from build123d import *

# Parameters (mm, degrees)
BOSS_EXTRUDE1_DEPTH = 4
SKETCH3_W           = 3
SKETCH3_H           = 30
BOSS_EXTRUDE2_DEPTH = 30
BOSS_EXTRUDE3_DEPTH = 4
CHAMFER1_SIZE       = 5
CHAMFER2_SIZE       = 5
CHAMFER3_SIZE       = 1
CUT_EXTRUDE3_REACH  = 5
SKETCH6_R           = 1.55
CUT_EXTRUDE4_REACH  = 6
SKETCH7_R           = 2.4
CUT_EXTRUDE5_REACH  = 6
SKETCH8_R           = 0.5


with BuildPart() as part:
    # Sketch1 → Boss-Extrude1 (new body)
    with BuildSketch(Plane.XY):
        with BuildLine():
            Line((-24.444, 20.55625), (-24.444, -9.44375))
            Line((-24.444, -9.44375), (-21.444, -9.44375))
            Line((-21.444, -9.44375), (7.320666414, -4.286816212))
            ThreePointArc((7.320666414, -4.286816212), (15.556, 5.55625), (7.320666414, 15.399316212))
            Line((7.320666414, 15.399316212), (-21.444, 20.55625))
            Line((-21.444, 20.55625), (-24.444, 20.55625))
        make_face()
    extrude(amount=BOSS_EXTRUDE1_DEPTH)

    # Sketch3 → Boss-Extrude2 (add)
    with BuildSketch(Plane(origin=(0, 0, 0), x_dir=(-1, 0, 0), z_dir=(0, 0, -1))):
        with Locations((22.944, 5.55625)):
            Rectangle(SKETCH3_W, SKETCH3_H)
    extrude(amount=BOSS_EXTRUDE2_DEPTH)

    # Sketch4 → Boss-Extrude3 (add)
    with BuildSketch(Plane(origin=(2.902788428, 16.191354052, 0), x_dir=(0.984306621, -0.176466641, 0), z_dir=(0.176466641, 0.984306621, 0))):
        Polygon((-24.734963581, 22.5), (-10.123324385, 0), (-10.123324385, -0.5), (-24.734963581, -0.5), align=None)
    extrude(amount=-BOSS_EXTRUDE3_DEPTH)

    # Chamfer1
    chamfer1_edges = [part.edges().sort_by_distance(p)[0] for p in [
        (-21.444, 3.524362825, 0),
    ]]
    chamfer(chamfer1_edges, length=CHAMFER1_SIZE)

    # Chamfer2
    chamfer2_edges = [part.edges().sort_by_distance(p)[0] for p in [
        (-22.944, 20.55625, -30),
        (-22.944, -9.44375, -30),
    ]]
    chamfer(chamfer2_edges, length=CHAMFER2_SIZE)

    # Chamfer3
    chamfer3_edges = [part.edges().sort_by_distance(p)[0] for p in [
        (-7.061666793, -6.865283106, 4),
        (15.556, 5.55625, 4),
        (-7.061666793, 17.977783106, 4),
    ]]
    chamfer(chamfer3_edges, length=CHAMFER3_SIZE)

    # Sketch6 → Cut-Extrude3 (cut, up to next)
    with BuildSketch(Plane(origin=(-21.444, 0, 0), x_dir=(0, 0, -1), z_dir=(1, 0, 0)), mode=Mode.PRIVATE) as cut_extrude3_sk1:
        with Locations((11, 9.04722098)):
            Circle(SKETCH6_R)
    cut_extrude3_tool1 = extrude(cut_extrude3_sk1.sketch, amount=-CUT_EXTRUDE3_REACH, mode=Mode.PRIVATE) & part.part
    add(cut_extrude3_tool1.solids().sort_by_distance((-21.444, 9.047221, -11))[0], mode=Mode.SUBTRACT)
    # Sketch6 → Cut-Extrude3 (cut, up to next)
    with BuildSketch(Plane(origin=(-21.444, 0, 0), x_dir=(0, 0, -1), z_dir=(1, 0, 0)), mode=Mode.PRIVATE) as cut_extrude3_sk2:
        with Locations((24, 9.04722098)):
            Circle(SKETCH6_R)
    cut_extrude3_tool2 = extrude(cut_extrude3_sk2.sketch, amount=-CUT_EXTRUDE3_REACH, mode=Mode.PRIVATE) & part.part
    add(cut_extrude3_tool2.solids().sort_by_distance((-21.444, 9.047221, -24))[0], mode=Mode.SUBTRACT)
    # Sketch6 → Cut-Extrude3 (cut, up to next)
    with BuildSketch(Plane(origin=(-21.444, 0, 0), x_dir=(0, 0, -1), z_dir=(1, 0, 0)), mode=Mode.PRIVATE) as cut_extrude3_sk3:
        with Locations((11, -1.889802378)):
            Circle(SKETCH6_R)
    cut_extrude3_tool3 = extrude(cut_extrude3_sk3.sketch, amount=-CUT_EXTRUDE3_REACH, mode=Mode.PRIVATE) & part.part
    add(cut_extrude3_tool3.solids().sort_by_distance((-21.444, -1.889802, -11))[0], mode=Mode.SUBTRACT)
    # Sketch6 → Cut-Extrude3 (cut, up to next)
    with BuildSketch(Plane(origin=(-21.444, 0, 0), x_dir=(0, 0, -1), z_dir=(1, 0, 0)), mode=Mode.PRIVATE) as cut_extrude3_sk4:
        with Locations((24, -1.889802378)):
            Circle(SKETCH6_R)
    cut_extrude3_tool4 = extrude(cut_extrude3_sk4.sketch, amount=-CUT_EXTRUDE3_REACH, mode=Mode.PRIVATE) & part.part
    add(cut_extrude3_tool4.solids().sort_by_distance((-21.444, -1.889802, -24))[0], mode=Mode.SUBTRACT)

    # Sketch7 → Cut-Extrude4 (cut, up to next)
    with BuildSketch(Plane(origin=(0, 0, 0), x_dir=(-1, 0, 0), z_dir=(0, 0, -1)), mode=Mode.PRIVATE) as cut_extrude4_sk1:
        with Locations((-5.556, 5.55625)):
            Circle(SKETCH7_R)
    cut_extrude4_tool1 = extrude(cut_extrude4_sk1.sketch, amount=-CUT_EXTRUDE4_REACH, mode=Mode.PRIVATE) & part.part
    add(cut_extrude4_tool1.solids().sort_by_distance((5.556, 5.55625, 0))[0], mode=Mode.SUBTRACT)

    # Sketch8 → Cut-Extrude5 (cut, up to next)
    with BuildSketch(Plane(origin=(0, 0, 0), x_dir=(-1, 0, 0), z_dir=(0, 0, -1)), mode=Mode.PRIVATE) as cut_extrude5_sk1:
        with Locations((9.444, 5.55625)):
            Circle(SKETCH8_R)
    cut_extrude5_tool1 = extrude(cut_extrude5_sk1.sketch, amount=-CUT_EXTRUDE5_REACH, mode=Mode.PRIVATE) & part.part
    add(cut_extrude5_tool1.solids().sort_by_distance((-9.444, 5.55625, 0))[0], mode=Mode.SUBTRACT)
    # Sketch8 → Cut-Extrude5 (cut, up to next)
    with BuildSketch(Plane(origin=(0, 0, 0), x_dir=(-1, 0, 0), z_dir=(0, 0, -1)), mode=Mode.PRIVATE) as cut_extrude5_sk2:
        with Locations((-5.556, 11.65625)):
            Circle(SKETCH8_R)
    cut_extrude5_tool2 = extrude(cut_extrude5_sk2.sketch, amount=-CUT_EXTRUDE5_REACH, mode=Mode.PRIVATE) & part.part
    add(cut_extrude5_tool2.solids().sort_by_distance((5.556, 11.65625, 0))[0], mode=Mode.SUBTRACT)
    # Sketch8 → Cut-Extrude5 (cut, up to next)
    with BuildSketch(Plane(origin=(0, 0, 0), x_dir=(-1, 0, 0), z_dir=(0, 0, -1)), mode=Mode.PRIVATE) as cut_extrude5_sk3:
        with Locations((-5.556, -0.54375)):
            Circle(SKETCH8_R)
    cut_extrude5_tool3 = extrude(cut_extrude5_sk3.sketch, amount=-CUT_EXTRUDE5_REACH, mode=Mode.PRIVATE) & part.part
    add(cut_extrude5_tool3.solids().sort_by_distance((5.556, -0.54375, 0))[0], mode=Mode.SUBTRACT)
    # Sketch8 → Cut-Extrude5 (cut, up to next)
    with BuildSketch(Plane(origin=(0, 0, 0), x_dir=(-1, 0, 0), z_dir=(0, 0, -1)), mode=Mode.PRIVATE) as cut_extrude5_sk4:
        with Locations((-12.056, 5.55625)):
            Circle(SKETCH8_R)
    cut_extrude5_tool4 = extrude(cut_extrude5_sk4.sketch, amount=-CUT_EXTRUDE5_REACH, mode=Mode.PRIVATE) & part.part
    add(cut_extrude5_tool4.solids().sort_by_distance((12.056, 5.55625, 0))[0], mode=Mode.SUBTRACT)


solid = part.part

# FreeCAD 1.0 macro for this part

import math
import FreeCAD as App
import Part
import Sketcher

V = App.Vector
Q = App.Units.Quantity


def edges_at(feature, points):
    """Names of the edges that pass closest to the given points."""
    edges = feature.Shape.Edges
    near = lambda p: min(range(len(edges)), key=lambda i: edges[i].distToShape(Part.Vertex(*p))[0])
    return sorted({f"Edge{near(p) + 1}" for p in points})


def add_polygon(sketch, points):
    """Adds a closed chain of lines whose ends are joined by coincident constraints."""
    first, n = sketch.GeometryCount, len(points)
    for a, b in zip(points, points[1:] + points[:1]):
        sketch.addGeometry(Part.LineSegment(App.Vector(*a, 0), App.Vector(*b, 0)), False)
    for i in range(n):
        sketch.addConstraint(Sketcher.Constraint("Coincident", first + i, 2, first + (i + 1) % n, 1))

doc = App.newDocument("Part")
params = doc.addObject("Spreadsheet::Sheet", "Params")
for row, (alias, value) in enumerate([
    ("sketch1_radius", "10 mm"),
    ("sketch1_width", "3 mm"),
    ("sketch1_height", "30 mm"),
    ("pad1_length", "4 mm"),
    ("sketch2_width", "3 mm"),
    ("sketch2_height", "30 mm"),
    ("pad2_length", "30 mm"),
    ("sketch3_height", "23 mm"),
    ("sketch3_height2", "0.5 mm"),
    ("pad3_length", "4 mm"),
    ("chamfer_size", "5 mm"),
    ("chamfer2_size", "5 mm"),
    ("chamfer3_size", "1 mm"),
    ("sketch4_diameter", "3.1 mm"),
    ("sketch5_diameter", "3.1 mm"),
    ("sketch6_diameter", "3.1 mm"),
    ("sketch7_diameter", "3.1 mm"),
    ("sketch8_diameter", "4.8 mm"),
    ("sketch9_diameter", "1 mm"),
    ("sketch10_diameter", "1 mm"),
    ("sketch11_diameter", "1 mm"),
    ("sketch12_diameter", "1 mm"),
], start=1):
    params.set(f"A{row}", alias)
    params.set(f"B{row}", "=" + value)
    params.setAlias(f"B{row}", alias)

body = doc.addObject("PartDesign::Body", "Body")

sketch1 = body.newObject("Sketcher::SketchObject", "Sketch")
sketch1.AttachmentSupport = (doc.getObject("XY_Plane"), [""])
sketch1.MapMode = "FlatFace"
sketch1.addGeometry(Part.LineSegment(V(-24.4, 20.6, 0), V(-24.4, -9.4, 0)), False)
sketch1.addGeometry(Part.LineSegment(V(-24.4, -9.4, 0), V(-21.4, -9.4, 0)), False)
sketch1.addGeometry(Part.LineSegment(V(-21.4, -9.4, 0), V(7.3, -4.3, 0)), False)
sketch1.addGeometry(Part.ArcOfCircle(Part.Circle(V(5.6, 5.6, 0), V(0, 0, 1), 10), math.radians(-80), math.radians(80)), False)
sketch1.addGeometry(Part.LineSegment(V(7.3, 15.4, 0), V(-21.4, 20.6, 0)), False)
sketch1.addGeometry(Part.LineSegment(V(-21.4, 20.6, 0), V(-24.4, 20.6, 0)), False)
sketch1.addConstraint(Sketcher.Constraint("Coincident", 0, 2, 1, 1))
sketch1.addConstraint(Sketcher.Constraint("Coincident", 1, 2, 2, 1))
sketch1.addConstraint(Sketcher.Constraint("Tangent", 2, 2, 3, 1))
sketch1.addConstraint(Sketcher.Constraint("Tangent", 3, 2, 4, 1))
sketch1.addConstraint(Sketcher.Constraint("Coincident", 4, 2, 5, 1))
sketch1.addConstraint(Sketcher.Constraint("Coincident", 5, 2, 0, 1))
sketch1.addConstraint(Sketcher.Constraint("Vertical", 0))
sketch1.addConstraint(Sketcher.Constraint("Horizontal", 1))
sketch1.addConstraint(Sketcher.Constraint("Horizontal", 5))
sketch1.addConstraint(Sketcher.Constraint("Vertical", 2, 2, 3, 2))
sketch1.addConstraint(Sketcher.Constraint("Vertical", 1, 2, 4, 2))
sketch1.addConstraint(Sketcher.Constraint("Radius", 3, Q("10 mm")))
sketch1.addConstraint(Sketcher.Constraint("DistanceX", 1, 1, 1, 2, Q("3 mm")))
sketch1.addConstraint(Sketcher.Constraint("DistanceY", 0, 2, 0, 1, Q("30 mm")))
sketch1.addConstraint(Sketcher.Constraint("DistanceX", 0, 2, 3, 3, Q("30 mm")))
sketch1.addConstraint(Sketcher.Constraint("DistanceX", -1, 1, 3, 3, Q("5.556 mm")))
sketch1.addConstraint(Sketcher.Constraint("DistanceY", -1, 1, 3, 3, Q("5.55625 mm")))
sketch1.setExpression("Constraints[11]", "Params.sketch1_radius")
sketch1.setExpression("Constraints[12]", "Params.sketch1_width")
sketch1.setExpression("Constraints[13]", "Params.sketch1_height")
pad1 = body.newObject("PartDesign::Pad", "Pad")
pad1.Profile = sketch1
pad1.setExpression("Length", "Params.pad1_length")

sketch2 = body.newObject("Sketcher::SketchObject", "Sketch001")
sketch2.AttachmentSupport = (doc.getObject("XY_Plane"), [""])
sketch2.MapMode = "FlatFace"
add_polygon(sketch2, [(-21.4, 20.6), (-21.4, -9.4), (-24.4, -9.4), (-24.4, 20.6)])
sketch2.addConstraint(Sketcher.Constraint("Vertical", 0))
sketch2.addConstraint(Sketcher.Constraint("Horizontal", 1))
sketch2.addConstraint(Sketcher.Constraint("Vertical", 2))
sketch2.addConstraint(Sketcher.Constraint("Horizontal", 3))
sketch2.addConstraint(Sketcher.Constraint("DistanceX", 1, 2, 1, 1, Q("3 mm")))
sketch2.addConstraint(Sketcher.Constraint("DistanceY", 0, 2, 0, 1, Q("30 mm")))
sketch2.addConstraint(Sketcher.Constraint("DistanceX", 0, 2, -1, 1, Q("21.444 mm")))
sketch2.addConstraint(Sketcher.Constraint("DistanceY", 0, 2, -1, 1, Q("9.44375 mm")))
sketch2.setExpression("Constraints[8]", "Params.sketch2_width")
sketch2.setExpression("Constraints[9]", "Params.sketch2_height")
pad2 = body.newObject("PartDesign::Pad", "Pad001")
pad2.Profile = sketch2
pad2.setExpression("Length", "Params.pad2_length")
pad2.Reversed = True

sketch3 = body.newObject("Sketcher::SketchObject", "Sketch002")
sketch3.Placement = App.Placement(V(2.902788, 16.191354, 0), App.Rotation(V(0.984306621, -0.176466641, 0), V(0, 0, -1), V(0.176466641, 0.984306621, 0), "ZXY"))
add_polygon(sketch3, [(-10.1, 0), (-24.7, 22.5), (-24.7, -0.5), (-10.1, -0.5)])
sketch3.addConstraint(Sketcher.Constraint("Vertical", 1))
sketch3.addConstraint(Sketcher.Constraint("Horizontal", 2))
sketch3.addConstraint(Sketcher.Constraint("Vertical", 3))
sketch3.addConstraint(Sketcher.Constraint("PointOnObject", 3, 2, -1))
sketch3.addConstraint(Sketcher.Constraint("DistanceY", 1, 2, 1, 1, Q("23 mm")))
sketch3.addConstraint(Sketcher.Constraint("DistanceY", 3, 1, 3, 2, Q("0.5 mm")))
sketch3.addConstraint(Sketcher.Constraint("DistanceX", 2, 1, 2, 2, Q("14.611639 mm")))
sketch3.addConstraint(Sketcher.Constraint("DistanceX", 0, 2, -1, 1, Q("24.734964 mm")))
sketch3.setExpression("Constraints[8]", "Params.sketch3_height")
sketch3.setExpression("Constraints[9]", "Params.sketch3_height2")
pad3 = body.newObject("PartDesign::Pad", "Pad002")
pad3.Profile = sketch3
pad3.setExpression("Length", "Params.pad3_length")
pad3.Reversed = True
doc.recompute()

chamfer = body.newObject("PartDesign::Chamfer", "Chamfer")
chamfer.Base = (pad3, edges_at(pad3, [(-21.444, 3.524, 0)]))
chamfer.setExpression("Size", "Params.chamfer_size")
doc.recompute()

chamfer2 = body.newObject("PartDesign::Chamfer", "Chamfer001")
chamfer2.Base = (chamfer, edges_at(chamfer, [(-22.944, 20.556, -30), (-22.944, -9.444, -30)]))
chamfer2.setExpression("Size", "Params.chamfer2_size")
doc.recompute()

chamfer3 = body.newObject("PartDesign::Chamfer", "Chamfer002")
chamfer3.Base = (chamfer2, edges_at(chamfer2, [(-7.062, -6.865, 4), (15.556, 5.556, 4), (-7.062, 17.978, 4)]))
chamfer3.setExpression("Size", "Params.chamfer3_size")

sketch4 = body.newObject("Sketcher::SketchObject", "Sketch003")
sketch4.AttachmentSupport = (doc.getObject("YZ_Plane"), [""])
sketch4.MapMode = "FlatFace"
sketch4.AttachmentOffset = App.Placement(V(0, 0, -21.444), App.Rotation())
sketch4.addGeometry(Part.Circle(V(9, -11, 0), V(0, 0, 1), 1.6), False)
sketch4.addConstraint(Sketcher.Constraint("Diameter", 0, Q("3.1 mm")))
sketch4.addConstraint(Sketcher.Constraint("DistanceY", 0, 3, -1, 1, Q("11 mm")))
sketch4.addConstraint(Sketcher.Constraint("DistanceX", -1, 1, 0, 3, Q("9.047221 mm")))
sketch4.setExpression("Constraints[0]", "Params.sketch4_diameter")
pocket1 = body.newObject("PartDesign::Pocket", "Pocket")
pocket1.Profile = sketch4
pocket1.Type = "UpToFirst"

sketch5 = body.newObject("Sketcher::SketchObject", "Sketch004")
sketch5.AttachmentSupport = (doc.getObject("YZ_Plane"), [""])
sketch5.MapMode = "FlatFace"
sketch5.AttachmentOffset = App.Placement(V(0, 0, -21.444), App.Rotation())
sketch5.addGeometry(Part.Circle(V(9, -24, 0), V(0, 0, 1), 1.6), False)
sketch5.addConstraint(Sketcher.Constraint("Diameter", 0, Q("3.1 mm")))
sketch5.addConstraint(Sketcher.Constraint("DistanceY", 0, 3, -1, 1, Q("24 mm")))
sketch5.addConstraint(Sketcher.Constraint("DistanceX", -1, 1, 0, 3, Q("9.047221 mm")))
sketch5.setExpression("Constraints[0]", "Params.sketch5_diameter")
pocket2 = body.newObject("PartDesign::Pocket", "Pocket001")
pocket2.Profile = sketch5
pocket2.Type = "UpToFirst"

sketch6 = body.newObject("Sketcher::SketchObject", "Sketch005")
sketch6.AttachmentSupport = (doc.getObject("YZ_Plane"), [""])
sketch6.MapMode = "FlatFace"
sketch6.AttachmentOffset = App.Placement(V(0, 0, -21.444), App.Rotation())
sketch6.addGeometry(Part.Circle(V(-1.9, -11, 0), V(0, 0, 1), 1.6), False)
sketch6.addConstraint(Sketcher.Constraint("Diameter", 0, Q("3.1 mm")))
sketch6.addConstraint(Sketcher.Constraint("DistanceY", 0, 3, -1, 1, Q("11 mm")))
sketch6.addConstraint(Sketcher.Constraint("DistanceX", 0, 3, -1, 1, Q("1.889802 mm")))
sketch6.setExpression("Constraints[0]", "Params.sketch6_diameter")
pocket3 = body.newObject("PartDesign::Pocket", "Pocket002")
pocket3.Profile = sketch6
pocket3.Type = "UpToFirst"

sketch7 = body.newObject("Sketcher::SketchObject", "Sketch006")
sketch7.AttachmentSupport = (doc.getObject("YZ_Plane"), [""])
sketch7.MapMode = "FlatFace"
sketch7.AttachmentOffset = App.Placement(V(0, 0, -21.444), App.Rotation())
sketch7.addGeometry(Part.Circle(V(-1.9, -24, 0), V(0, 0, 1), 1.6), False)
sketch7.addConstraint(Sketcher.Constraint("Diameter", 0, Q("3.1 mm")))
sketch7.addConstraint(Sketcher.Constraint("DistanceY", 0, 3, -1, 1, Q("24 mm")))
sketch7.addConstraint(Sketcher.Constraint("DistanceX", 0, 3, -1, 1, Q("1.889802 mm")))
sketch7.setExpression("Constraints[0]", "Params.sketch7_diameter")
pocket4 = body.newObject("PartDesign::Pocket", "Pocket003")
pocket4.Profile = sketch7
pocket4.Type = "UpToFirst"

sketch8 = body.newObject("Sketcher::SketchObject", "Sketch007")
sketch8.AttachmentSupport = (doc.getObject("XY_Plane"), [""])
sketch8.MapMode = "FlatFace"
sketch8.addGeometry(Part.Circle(V(5.6, 5.6, 0), V(0, 0, 1), 2.4), False)
sketch8.addConstraint(Sketcher.Constraint("Diameter", 0, Q("4.8 mm")))
sketch8.addConstraint(Sketcher.Constraint("DistanceX", -1, 1, 0, 3, Q("5.556 mm")))
sketch8.addConstraint(Sketcher.Constraint("DistanceY", -1, 1, 0, 3, Q("5.55625 mm")))
sketch8.setExpression("Constraints[0]", "Params.sketch8_diameter")
pocket5 = body.newObject("PartDesign::Pocket", "Pocket004")
pocket5.Profile = sketch8
pocket5.Type = "UpToFirst"
pocket5.Reversed = True

sketch9 = body.newObject("Sketcher::SketchObject", "Sketch008")
sketch9.AttachmentSupport = (doc.getObject("XY_Plane"), [""])
sketch9.MapMode = "FlatFace"
sketch9.addGeometry(Part.Circle(V(-9.4, 5.6, 0), V(0, 0, 1), 0.5), False)
sketch9.addConstraint(Sketcher.Constraint("Diameter", 0, Q("1 mm")))
sketch9.addConstraint(Sketcher.Constraint("DistanceX", 0, 3, -1, 1, Q("9.444 mm")))
sketch9.addConstraint(Sketcher.Constraint("DistanceY", -1, 1, 0, 3, Q("5.55625 mm")))
sketch9.setExpression("Constraints[0]", "Params.sketch9_diameter")
pocket6 = body.newObject("PartDesign::Pocket", "Pocket005")
pocket6.Profile = sketch9
pocket6.Type = "UpToFirst"
pocket6.Reversed = True

sketch10 = body.newObject("Sketcher::SketchObject", "Sketch009")
sketch10.AttachmentSupport = (doc.getObject("XY_Plane"), [""])
sketch10.MapMode = "FlatFace"
sketch10.addGeometry(Part.Circle(V(5.6, 11.7, 0), V(0, 0, 1), 0.5), False)
sketch10.addConstraint(Sketcher.Constraint("Diameter", 0, Q("1 mm")))
sketch10.addConstraint(Sketcher.Constraint("DistanceX", -1, 1, 0, 3, Q("5.556 mm")))
sketch10.addConstraint(Sketcher.Constraint("DistanceY", -1, 1, 0, 3, Q("11.65625 mm")))
sketch10.setExpression("Constraints[0]", "Params.sketch10_diameter")
pocket7 = body.newObject("PartDesign::Pocket", "Pocket006")
pocket7.Profile = sketch10
pocket7.Type = "UpToFirst"
pocket7.Reversed = True

sketch11 = body.newObject("Sketcher::SketchObject", "Sketch010")
sketch11.AttachmentSupport = (doc.getObject("XY_Plane"), [""])
sketch11.MapMode = "FlatFace"
sketch11.addGeometry(Part.Circle(V(5.6, -0.5, 0), V(0, 0, 1), 0.5), False)
sketch11.addConstraint(Sketcher.Constraint("Diameter", 0, Q("1 mm")))
sketch11.addConstraint(Sketcher.Constraint("DistanceX", -1, 1, 0, 3, Q("5.556 mm")))
sketch11.addConstraint(Sketcher.Constraint("DistanceY", 0, 3, -1, 1, Q("0.54375 mm")))
sketch11.setExpression("Constraints[0]", "Params.sketch11_diameter")
pocket8 = body.newObject("PartDesign::Pocket", "Pocket007")
pocket8.Profile = sketch11
pocket8.Type = "UpToFirst"
pocket8.Reversed = True

sketch12 = body.newObject("Sketcher::SketchObject", "Sketch011")
sketch12.AttachmentSupport = (doc.getObject("XY_Plane"), [""])
sketch12.MapMode = "FlatFace"
sketch12.addGeometry(Part.Circle(V(12.1, 5.6, 0), V(0, 0, 1), 0.5), False)
sketch12.addConstraint(Sketcher.Constraint("Diameter", 0, Q("1 mm")))
sketch12.addConstraint(Sketcher.Constraint("DistanceX", -1, 1, 0, 3, Q("12.056 mm")))
sketch12.addConstraint(Sketcher.Constraint("DistanceY", -1, 1, 0, 3, Q("5.55625 mm")))
sketch12.setExpression("Constraints[0]", "Params.sketch12_diameter")
pocket9 = body.newObject("PartDesign::Pocket", "Pocket008")
pocket9.Profile = sketch12
pocket9.Type = "UpToFirst"
pocket9.Reversed = True

doc.recompute()
